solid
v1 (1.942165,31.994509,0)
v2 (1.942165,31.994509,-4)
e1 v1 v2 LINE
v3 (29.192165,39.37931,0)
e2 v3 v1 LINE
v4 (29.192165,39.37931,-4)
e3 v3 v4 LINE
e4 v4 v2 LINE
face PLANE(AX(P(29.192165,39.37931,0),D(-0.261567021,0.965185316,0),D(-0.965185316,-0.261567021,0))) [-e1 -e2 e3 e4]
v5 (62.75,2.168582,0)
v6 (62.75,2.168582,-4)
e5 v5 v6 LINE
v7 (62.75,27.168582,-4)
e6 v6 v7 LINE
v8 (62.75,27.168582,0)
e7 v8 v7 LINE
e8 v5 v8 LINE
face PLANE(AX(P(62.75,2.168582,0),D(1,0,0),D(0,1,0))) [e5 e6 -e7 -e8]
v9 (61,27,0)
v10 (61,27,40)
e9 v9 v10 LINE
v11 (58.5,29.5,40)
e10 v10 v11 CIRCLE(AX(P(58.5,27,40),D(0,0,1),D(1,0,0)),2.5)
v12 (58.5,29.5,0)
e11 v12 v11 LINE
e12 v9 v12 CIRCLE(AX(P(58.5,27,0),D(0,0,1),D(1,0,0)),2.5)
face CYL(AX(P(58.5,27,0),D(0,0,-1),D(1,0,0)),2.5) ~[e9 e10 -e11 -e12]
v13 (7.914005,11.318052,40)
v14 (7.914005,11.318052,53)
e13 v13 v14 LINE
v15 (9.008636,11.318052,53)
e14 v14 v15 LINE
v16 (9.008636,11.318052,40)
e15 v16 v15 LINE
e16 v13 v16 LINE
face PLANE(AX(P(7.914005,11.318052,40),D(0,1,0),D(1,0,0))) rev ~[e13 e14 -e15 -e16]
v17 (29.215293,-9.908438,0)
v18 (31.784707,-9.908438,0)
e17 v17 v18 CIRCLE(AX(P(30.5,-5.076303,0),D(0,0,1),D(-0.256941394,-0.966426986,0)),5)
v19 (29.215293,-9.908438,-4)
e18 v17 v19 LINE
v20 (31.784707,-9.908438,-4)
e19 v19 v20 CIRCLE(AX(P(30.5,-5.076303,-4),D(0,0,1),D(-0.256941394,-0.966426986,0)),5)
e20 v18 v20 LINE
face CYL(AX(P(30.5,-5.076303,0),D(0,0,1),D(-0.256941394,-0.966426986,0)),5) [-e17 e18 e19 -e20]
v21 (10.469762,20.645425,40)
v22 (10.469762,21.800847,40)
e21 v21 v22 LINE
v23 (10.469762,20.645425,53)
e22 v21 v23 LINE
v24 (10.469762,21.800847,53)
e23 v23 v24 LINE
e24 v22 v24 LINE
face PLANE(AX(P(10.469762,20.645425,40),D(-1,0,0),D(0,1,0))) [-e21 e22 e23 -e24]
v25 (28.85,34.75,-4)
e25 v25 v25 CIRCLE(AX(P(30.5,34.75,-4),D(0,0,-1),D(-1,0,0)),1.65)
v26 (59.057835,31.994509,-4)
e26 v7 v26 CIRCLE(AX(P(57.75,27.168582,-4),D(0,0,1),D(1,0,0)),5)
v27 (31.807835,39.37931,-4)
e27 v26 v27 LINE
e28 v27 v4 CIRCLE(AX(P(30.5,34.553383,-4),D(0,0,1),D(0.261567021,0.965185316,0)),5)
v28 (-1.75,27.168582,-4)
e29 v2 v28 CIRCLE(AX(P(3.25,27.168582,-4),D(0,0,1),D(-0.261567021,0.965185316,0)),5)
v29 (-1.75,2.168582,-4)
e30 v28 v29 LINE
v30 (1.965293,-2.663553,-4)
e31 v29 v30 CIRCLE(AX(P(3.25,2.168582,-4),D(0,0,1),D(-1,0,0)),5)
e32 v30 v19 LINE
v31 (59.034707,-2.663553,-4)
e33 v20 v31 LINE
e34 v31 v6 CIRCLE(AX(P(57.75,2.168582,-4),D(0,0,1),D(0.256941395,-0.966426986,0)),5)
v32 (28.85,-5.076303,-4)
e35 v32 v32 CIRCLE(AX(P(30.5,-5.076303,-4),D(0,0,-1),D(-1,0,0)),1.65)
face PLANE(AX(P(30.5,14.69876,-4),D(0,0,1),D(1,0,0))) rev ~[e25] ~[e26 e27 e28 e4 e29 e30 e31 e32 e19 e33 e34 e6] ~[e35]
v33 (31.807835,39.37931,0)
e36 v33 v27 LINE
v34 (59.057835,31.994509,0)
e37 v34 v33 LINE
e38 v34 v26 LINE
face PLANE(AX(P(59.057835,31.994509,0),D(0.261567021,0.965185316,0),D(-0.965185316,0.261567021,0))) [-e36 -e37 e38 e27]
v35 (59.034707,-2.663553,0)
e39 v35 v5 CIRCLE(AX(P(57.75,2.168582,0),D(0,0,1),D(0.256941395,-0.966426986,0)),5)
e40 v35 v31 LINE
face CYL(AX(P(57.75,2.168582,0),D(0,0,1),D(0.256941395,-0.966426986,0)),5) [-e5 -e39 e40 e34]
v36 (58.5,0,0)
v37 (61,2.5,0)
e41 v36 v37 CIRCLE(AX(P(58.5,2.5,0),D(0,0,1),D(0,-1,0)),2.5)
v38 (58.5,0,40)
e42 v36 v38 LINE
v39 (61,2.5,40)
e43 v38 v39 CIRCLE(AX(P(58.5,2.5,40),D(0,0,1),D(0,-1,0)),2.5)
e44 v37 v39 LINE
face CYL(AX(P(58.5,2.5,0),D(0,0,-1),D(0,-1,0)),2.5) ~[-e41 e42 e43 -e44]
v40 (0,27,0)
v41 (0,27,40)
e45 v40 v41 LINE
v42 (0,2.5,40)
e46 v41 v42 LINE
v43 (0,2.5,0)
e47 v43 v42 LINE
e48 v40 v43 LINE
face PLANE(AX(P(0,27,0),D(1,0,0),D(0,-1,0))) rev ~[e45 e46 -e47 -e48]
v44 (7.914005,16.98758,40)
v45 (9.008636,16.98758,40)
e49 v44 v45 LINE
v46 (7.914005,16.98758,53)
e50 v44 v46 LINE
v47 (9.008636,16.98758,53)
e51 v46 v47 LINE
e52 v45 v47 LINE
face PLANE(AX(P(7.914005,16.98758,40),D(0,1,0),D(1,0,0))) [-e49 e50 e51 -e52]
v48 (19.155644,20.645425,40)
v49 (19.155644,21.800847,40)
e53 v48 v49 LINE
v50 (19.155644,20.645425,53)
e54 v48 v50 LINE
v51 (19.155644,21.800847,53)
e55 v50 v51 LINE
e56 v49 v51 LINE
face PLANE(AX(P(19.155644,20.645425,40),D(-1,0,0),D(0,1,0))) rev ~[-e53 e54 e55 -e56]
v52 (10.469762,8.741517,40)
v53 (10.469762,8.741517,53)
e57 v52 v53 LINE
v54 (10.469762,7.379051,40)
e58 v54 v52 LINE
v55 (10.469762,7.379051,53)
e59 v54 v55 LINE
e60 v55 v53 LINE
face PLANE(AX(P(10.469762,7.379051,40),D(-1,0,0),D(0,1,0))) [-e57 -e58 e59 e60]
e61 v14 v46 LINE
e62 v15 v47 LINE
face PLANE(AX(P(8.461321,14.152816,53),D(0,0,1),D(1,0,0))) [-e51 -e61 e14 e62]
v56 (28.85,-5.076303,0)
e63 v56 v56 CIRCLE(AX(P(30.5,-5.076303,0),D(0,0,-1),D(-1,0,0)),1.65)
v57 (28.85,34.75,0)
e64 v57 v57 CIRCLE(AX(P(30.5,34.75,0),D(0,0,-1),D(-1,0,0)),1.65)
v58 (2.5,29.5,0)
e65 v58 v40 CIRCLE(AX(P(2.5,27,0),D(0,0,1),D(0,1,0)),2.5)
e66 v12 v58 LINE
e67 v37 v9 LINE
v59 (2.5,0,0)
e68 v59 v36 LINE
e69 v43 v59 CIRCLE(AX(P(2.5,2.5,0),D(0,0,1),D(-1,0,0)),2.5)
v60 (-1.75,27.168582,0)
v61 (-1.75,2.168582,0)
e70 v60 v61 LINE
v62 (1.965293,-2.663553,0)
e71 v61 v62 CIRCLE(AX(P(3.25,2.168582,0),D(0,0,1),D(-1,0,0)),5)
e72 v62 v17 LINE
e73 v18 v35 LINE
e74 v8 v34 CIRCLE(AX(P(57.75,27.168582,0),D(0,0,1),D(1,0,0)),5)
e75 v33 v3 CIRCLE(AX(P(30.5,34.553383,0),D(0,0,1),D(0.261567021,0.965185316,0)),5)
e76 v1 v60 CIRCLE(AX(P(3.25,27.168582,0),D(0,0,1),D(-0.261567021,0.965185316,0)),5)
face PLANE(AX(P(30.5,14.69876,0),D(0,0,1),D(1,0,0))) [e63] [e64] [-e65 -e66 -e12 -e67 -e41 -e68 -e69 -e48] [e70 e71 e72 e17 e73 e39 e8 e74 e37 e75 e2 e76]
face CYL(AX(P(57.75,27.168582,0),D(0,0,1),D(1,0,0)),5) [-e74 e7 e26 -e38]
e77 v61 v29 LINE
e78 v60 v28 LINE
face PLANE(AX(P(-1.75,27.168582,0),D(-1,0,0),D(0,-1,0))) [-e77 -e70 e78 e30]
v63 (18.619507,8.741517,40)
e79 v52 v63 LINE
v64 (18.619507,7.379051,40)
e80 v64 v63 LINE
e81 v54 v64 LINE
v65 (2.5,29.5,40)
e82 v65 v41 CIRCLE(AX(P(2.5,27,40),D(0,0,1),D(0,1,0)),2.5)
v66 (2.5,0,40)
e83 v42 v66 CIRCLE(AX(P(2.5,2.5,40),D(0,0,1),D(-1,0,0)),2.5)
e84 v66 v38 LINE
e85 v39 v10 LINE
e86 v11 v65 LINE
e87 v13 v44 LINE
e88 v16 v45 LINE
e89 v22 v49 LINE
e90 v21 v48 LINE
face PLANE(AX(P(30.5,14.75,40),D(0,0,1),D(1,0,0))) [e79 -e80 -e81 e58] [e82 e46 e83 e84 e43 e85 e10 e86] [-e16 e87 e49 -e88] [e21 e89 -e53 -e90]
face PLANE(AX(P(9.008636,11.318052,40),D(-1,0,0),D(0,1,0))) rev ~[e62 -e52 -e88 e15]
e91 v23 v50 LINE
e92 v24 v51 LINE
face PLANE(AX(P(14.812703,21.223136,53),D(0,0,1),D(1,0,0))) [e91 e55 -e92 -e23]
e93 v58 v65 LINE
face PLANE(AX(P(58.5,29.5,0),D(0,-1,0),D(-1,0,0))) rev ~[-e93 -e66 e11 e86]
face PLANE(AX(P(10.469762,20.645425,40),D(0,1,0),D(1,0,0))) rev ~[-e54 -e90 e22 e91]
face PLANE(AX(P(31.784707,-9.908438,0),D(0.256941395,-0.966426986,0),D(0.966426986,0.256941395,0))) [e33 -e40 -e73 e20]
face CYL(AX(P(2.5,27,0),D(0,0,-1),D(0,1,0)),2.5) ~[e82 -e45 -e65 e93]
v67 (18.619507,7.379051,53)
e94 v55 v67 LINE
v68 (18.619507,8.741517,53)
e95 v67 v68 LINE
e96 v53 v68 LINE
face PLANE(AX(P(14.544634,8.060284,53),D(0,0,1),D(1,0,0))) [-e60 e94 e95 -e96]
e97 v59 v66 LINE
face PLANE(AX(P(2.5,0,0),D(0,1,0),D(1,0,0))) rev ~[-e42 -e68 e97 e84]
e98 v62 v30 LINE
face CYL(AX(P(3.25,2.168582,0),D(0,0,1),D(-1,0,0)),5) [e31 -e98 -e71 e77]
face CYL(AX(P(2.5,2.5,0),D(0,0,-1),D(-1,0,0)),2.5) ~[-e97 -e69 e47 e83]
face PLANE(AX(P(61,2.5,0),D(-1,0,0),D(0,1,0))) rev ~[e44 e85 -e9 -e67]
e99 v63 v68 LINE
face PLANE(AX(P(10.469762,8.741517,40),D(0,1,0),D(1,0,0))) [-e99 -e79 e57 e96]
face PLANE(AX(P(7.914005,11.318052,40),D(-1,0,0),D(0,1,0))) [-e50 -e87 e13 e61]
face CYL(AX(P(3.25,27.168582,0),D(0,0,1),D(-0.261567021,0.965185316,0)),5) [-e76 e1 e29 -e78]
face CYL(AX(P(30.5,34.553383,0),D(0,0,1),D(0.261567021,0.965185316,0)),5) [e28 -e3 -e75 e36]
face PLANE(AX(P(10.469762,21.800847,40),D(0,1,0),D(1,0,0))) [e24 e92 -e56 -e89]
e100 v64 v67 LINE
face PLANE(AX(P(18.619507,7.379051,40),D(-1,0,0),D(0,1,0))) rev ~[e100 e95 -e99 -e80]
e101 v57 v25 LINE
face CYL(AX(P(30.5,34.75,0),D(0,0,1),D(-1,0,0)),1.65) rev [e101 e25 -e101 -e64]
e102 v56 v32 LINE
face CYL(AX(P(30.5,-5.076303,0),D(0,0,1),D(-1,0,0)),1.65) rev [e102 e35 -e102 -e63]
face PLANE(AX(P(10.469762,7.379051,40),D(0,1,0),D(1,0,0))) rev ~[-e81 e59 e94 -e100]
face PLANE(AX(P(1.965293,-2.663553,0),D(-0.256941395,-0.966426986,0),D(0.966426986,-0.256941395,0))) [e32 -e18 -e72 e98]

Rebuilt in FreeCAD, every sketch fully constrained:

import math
import FreeCAD as App
import Part
import Sketcher
from FreeCAD import Vector

doc = App.newDocument("Part")
body = doc.addObject("PartDesign::Body", "Body")

# Sketch on XY plane
sketch1 = body.newObject("Sketcher::SketchObject", "Sketch")
sketch1.AttachmentSupport = (doc.getObject("XY_Plane"), [""])
sketch1.MapMode = "FlatFace"
sketch1.addGeometry([
    Part.LineSegment(Vector(2.5, 0, 0), Vector(58.5, 0, 0)),  # 0
    Part.ArcOfCircle(Part.Circle(Vector(58.5, 2.5, 0), Vector(0, 0, 1), 2.5), math.radians(-90), math.radians(0)),  # 1
    Part.LineSegment(Vector(61, 2.5, 0), Vector(61, 27, 0)),  # 2
    Part.ArcOfCircle(Part.Circle(Vector(58.5, 27, 0), Vector(0, 0, 1), 2.5), math.radians(0), math.radians(90)),  # 3
    Part.LineSegment(Vector(58.5, 29.5, 0), Vector(2.5, 29.5, 0)),  # 4
    Part.ArcOfCircle(Part.Circle(Vector(2.5, 27, 0), Vector(0, 0, 1), 2.5), math.radians(90), math.radians(180)),  # 5
    Part.LineSegment(Vector(0, 27, 0), Vector(0, 2.5, 0)),  # 6
    Part.ArcOfCircle(Part.Circle(Vector(2.5, 2.5, 0), Vector(0, 0, 1), 2.5), math.radians(180), math.radians(270)),  # 7
], False)
sketch1.addConstraint([
    Sketcher.Constraint("Tangent", 0, 2, 1, 1),
    Sketcher.Constraint("Tangent", 1, 2, 2, 1),
    Sketcher.Constraint("Tangent", 2, 2, 3, 1),
    Sketcher.Constraint("Tangent", 3, 2, 4, 1),
    Sketcher.Constraint("Tangent", 4, 2, 5, 1),
    Sketcher.Constraint("Tangent", 5, 2, 6, 1),
    Sketcher.Constraint("Tangent", 6, 2, 7, 1),
    Sketcher.Constraint("Tangent", 7, 2, 0, 1),
    Sketcher.Constraint("Horizontal", 0),
    Sketcher.Constraint("Vertical", 2),
    Sketcher.Constraint("Horizontal", 4),
    Sketcher.Constraint("Vertical", 6),
    Sketcher.Constraint("Equal", 1, 3),
    Sketcher.Constraint("Equal", 3, 5),
    Sketcher.Constraint("Equal", 5, 7),
    Sketcher.Constraint("PointOnObject", 0, 2, -1),
    Sketcher.Constraint("PointOnObject", 5, 2, -2),
    Sketcher.Constraint("Radius", 1, 2.5),
    Sketcher.Constraint("DistanceX", 0, 1, 0, 2, 56.0),
    Sketcher.Constraint("DistanceY", 2, 1, 2, 2, 24.5),
])
pad1 = body.newObject("PartDesign::Pad", "Pad")
pad1.Profile = sketch1
pad1.Length = 40

# Sketch on XY plane
sketch2 = body.newObject("Sketcher::SketchObject", "Sketch001")
sketch2.AttachmentSupport = (doc.getObject("XY_Plane"), [""])
sketch2.MapMode = "FlatFace"
sketch2.addGeometry([
    Part.LineSegment(Vector(1.9, 32, 0), Vector(29.2, 39.4, 0)),  # 0
    Part.ArcOfCircle(Part.Circle(Vector(30.5, 34.6, 0), Vector(0, 0, 1), 5), math.radians(75), math.radians(105)),  # 1
    Part.LineSegment(Vector(31.8, 39.4, 0), Vector(59.1, 32, 0)),  # 2
    Part.ArcOfCircle(Part.Circle(Vector(57.8, 27.2, 0), Vector(0, 0, 1), 5), math.radians(0), math.radians(75)),  # 3
    Part.LineSegment(Vector(62.8, 27.2, 0), Vector(62.8, 2.2, 0)),  # 4
    Part.ArcOfCircle(Part.Circle(Vector(57.8, 2.2, 0), Vector(0, 0, 1), 5), math.radians(-75), math.radians(0)),  # 5
    Part.LineSegment(Vector(59, -2.7, 0), Vector(31.8, -9.9, 0)),  # 6
    Part.ArcOfCircle(Part.Circle(Vector(30.5, -5.1, 0), Vector(0, 0, 1), 5), math.radians(-105), math.radians(-75)),  # 7
    Part.LineSegment(Vector(29.2, -9.9, 0), Vector(2, -2.7, 0)),  # 8
    Part.ArcOfCircle(Part.Circle(Vector(3.2, 2.2, 0), Vector(0, 0, 1), 5), math.radians(180), math.radians(255)),  # 9
    Part.LineSegment(Vector(-1.8, 2.2, 0), Vector(-1.8, 27.2, 0)),  # 10
    Part.ArcOfCircle(Part.Circle(Vector(3.2, 27.2, 0), Vector(0, 0, 1), 5), math.radians(105), math.radians(180)),  # 11
    Part.Circle(Vector(30.5, -5.1, 0), Vector(0, 0, 1), 1.6),  # 12
    Part.Circle(Vector(30.5, 34.8, 0), Vector(0, 0, 1), 1.6),  # 13
], False)
sketch2.addConstraint([
    Sketcher.Constraint("Tangent", 0, 2, 1, 2),
    Sketcher.Constraint("Tangent", 1, 1, 2, 1),
    Sketcher.Constraint("Tangent", 2, 2, 3, 2),
    Sketcher.Constraint("Tangent", 3, 1, 4, 1),
    Sketcher.Constraint("Tangent", 4, 2, 5, 2),
    Sketcher.Constraint("Tangent", 5, 1, 6, 1),
    Sketcher.Constraint("Tangent", 6, 2, 7, 2),
    Sketcher.Constraint("Tangent", 7, 1, 8, 1),
    Sketcher.Constraint("Tangent", 8, 2, 9, 2),
    Sketcher.Constraint("Tangent", 9, 1, 10, 1),
    Sketcher.Constraint("Tangent", 10, 2, 11, 2),
    Sketcher.Constraint("Tangent", 11, 1, 0, 1),
    Sketcher.Constraint("Vertical", 4),
    Sketcher.Constraint("Vertical", 10),
    Sketcher.Constraint("Coincident", 12, 3, 7, 3),
    Sketcher.Constraint("Equal", 1, 3),
    Sketcher.Constraint("Equal", 3, 5),
    Sketcher.Constraint("Equal", 5, 7),
    Sketcher.Constraint("Equal", 7, 9),
    Sketcher.Constraint("Equal", 9, 11),
    Sketcher.Constraint("Equal", 12, 13),
    Sketcher.Constraint("Horizontal", 5, 3, 9, 3),
    Sketcher.Constraint("Horizontal", 3, 3, 11, 3),
    Sketcher.Constraint("Horizontal", 0, 2, 1, 1),
    Sketcher.Constraint("Horizontal", 6, 2, 7, 1),
    Sketcher.Constraint("Vertical", 12, 3, 13, 3),
    Sketcher.Constraint("Radius", 1, 5.0),
    Sketcher.Constraint("Diameter", 12, 3.3),
    Sketcher.Constraint("DistanceY", 4, 2, 4, 1, 25.0),
    Sketcher.Constraint("DistanceX", -1, 1, 1, 3, 30.5),
    Sketcher.Constraint("DistanceX", 9, 3, 5, 3, 54.5),
    Sketcher.Constraint("DistanceY", -1, 1, 13, 3, 34.75),
    Sketcher.Constraint("DistanceY", 3, 3, 1, 3, 7.384801),
    Sketcher.Constraint("DistanceY", -1, 1, 0, 2, 39.37931),
    Sketcher.Constraint("DistanceY", 6, 2, -1, 1, 9.908438),
])
pad2 = body.newObject("PartDesign::Pad", "Pad001")
pad2.Profile = sketch2
pad2.Length = 4
pad2.Reversed = True

# Sketch on XY plane
sketch3 = body.newObject("Sketcher::SketchObject", "Sketch002")
sketch3.AttachmentSupport = (doc.getObject("XY_Plane"), [""])
sketch3.MapMode = "FlatFace"
sketch3.AttachmentOffset = App.Placement(Vector(0, 0, 40), App.Rotation())
sketch3.addGeometry([
    Part.LineSegment(Vector(7.9, 17, 0), Vector(7.9, 11.3, 0)),  # 0
    Part.LineSegment(Vector(7.9, 11.3, 0), Vector(9, 11.3, 0)),  # 1
    Part.LineSegment(Vector(9, 11.3, 0), Vector(9, 17, 0)),  # 2
    Part.LineSegment(Vector(9, 17, 0), Vector(7.9, 17, 0)),  # 3
    Part.LineSegment(Vector(10.5, 8.7, 0), Vector(10.5, 7.4, 0)),  # 4
    Part.LineSegment(Vector(10.5, 7.4, 0), Vector(18.6, 7.4, 0)),  # 5
    Part.LineSegment(Vector(18.6, 7.4, 0), Vector(18.6, 8.7, 0)),  # 6
    Part.LineSegment(Vector(18.6, 8.7, 0), Vector(10.5, 8.7, 0)),  # 7
    Part.LineSegment(Vector(10.5, 21.8, 0), Vector(10.5, 20.6, 0)),  # 8
    Part.LineSegment(Vector(10.5, 20.6, 0), Vector(19.2, 20.6, 0)),  # 9
    Part.LineSegment(Vector(19.2, 20.6, 0), Vector(19.2, 21.8, 0)),  # 10
    Part.LineSegment(Vector(19.2, 21.8, 0), Vector(10.5, 21.8, 0)),  # 11
], False)
sketch3.addConstraint([
    Sketcher.Constraint("Coincident", 0, 2, 1, 1),
    Sketcher.Constraint("Coincident", 1, 2, 2, 1),
    Sketcher.Constraint("Coincident", 2, 2, 3, 1),
    Sketcher.Constraint("Coincident", 3, 2, 0, 1),
    Sketcher.Constraint("Coincident", 4, 2, 5, 1),
    Sketcher.Constraint("Coincident", 5, 2, 6, 1),
    Sketcher.Constraint("Coincident", 6, 2, 7, 1),
    Sketcher.Constraint("Coincident", 7, 2, 4, 1),
    Sketcher.Constraint("Coincident", 8, 2, 9, 1),
    Sketcher.Constraint("Coincident", 9, 2, 10, 1),
    Sketcher.Constraint("Coincident", 10, 2, 11, 1),
    Sketcher.Constraint("Coincident", 11, 2, 8, 1),
    Sketcher.Constraint("Vertical", 0),
    Sketcher.Constraint("Horizontal", 1),
    Sketcher.Constraint("Vertical", 2),
    Sketcher.Constraint("Horizontal", 3),
    Sketcher.Constraint("Vertical", 4),
    Sketcher.Constraint("Horizontal", 5),
    Sketcher.Constraint("Vertical", 6),
    Sketcher.Constraint("Horizontal", 7),
    Sketcher.Constraint("Vertical", 8),
    Sketcher.Constraint("Horizontal", 9),
    Sketcher.Constraint("Vertical", 10),
    Sketcher.Constraint("Horizontal", 11),
    Sketcher.Constraint("Vertical", 7, 2, 8, 2),
    Sketcher.Constraint("DistanceY", 4, 2, 1, 2, 3.939001),
    Sketcher.Constraint("DistanceX", 1, 1, 1, 2, 1.094631),
    Sketcher.Constraint("DistanceX", 9, 1, 9, 2, 8.685882),
    Sketcher.Constraint("DistanceY", 8, 2, 8, 1, 1.155422),
    Sketcher.Constraint("DistanceX", 0, 2, 5, 2, 10.705502),
    Sketcher.Constraint("DistanceX", 5, 1, 5, 2, 8.149744),
    Sketcher.Constraint("DistanceY", 0, 2, 0, 1, 5.669528),
    Sketcher.Constraint("DistanceY", 4, 2, 4, 1, 1.362466),
    Sketcher.Constraint("DistanceY", -1, 1, 2, 2, 16.98758),
    Sketcher.Constraint("DistanceY", 6, 2, 10, 2, 13.05933),
    Sketcher.Constraint("DistanceX", -1, 1, 0, 2, 7.914005),
])
pad3 = body.newObject("PartDesign::Pad", "Pad002")
pad3.Profile = sketch3
pad3.Length = 13

doc.recompute()
